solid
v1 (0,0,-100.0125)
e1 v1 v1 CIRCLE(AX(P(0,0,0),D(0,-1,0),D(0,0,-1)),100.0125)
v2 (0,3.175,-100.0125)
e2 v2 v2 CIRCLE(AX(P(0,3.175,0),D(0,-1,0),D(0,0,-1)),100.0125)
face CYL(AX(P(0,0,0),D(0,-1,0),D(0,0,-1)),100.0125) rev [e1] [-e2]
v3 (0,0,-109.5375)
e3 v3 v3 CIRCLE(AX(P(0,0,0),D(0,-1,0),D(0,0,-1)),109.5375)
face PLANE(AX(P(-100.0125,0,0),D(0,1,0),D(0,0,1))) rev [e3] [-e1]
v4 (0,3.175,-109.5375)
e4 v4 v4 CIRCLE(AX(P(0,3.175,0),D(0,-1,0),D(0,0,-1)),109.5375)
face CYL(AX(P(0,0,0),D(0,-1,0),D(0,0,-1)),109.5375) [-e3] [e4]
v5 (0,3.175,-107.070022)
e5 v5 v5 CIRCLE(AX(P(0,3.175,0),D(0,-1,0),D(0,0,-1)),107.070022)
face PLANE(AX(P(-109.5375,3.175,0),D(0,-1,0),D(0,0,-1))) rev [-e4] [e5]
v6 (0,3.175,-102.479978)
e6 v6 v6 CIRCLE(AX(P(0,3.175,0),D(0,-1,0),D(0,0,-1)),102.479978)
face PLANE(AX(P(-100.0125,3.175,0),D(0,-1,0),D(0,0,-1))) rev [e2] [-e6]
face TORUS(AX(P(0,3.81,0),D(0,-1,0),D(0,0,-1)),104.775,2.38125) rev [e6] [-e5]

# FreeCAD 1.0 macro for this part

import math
import FreeCAD as App
import Part
import Sketcher
Q = App.Units.Quantity

doc = App.newDocument("Part")
body = doc.addObject("PartDesign::Body", "Body")

# Sketch on XY plane
sketch1 = body.newObject("Sketcher::SketchObject", "Sketch")
sketch1.AttachmentSupport = (doc.getObject("XY_Plane"), [""])
sketch1.MapMode = "FlatFace"
sketch1.addGeometry(Part.LineSegment(App.Vector(-109.5, 0, 0), App.Vector(-100, 0, 0)), False)
sketch1.addGeometry(Part.LineSegment(App.Vector(-100, 0, 0), App.Vector(-100, 3.2, 0)), False)
sketch1.addGeometry(Part.LineSegment(App.Vector(-100, 3.2, 0), App.Vector(-102.5, 3.2, 0)), False)
sketch1.addGeometry(Part.ArcOfCircle(Part.Circle(App.Vector(-104.8, 3.8, 0), App.Vector(0, 0, 1), 2.4), math.radians(-165), math.radians(-15)), False)
sketch1.addGeometry(Part.LineSegment(App.Vector(-107.1, 3.2, 0), App.Vector(-109.5, 3.2, 0)), False)
sketch1.addGeometry(Part.LineSegment(App.Vector(-109.5, 3.2, 0), App.Vector(-109.5, 0, 0)), False)
sketch1.addConstraint(Sketcher.Constraint("Coincident", 0, 2, 1, 1))
sketch1.addConstraint(Sketcher.Constraint("Coincident", 1, 2, 2, 1))
sketch1.addConstraint(Sketcher.Constraint("Coincident", 2, 2, 3, 2))
sketch1.addConstraint(Sketcher.Constraint("Coincident", 3, 1, 4, 1))
sketch1.addConstraint(Sketcher.Constraint("Coincident", 4, 2, 5, 1))
sketch1.addConstraint(Sketcher.Constraint("Coincident", 5, 2, 0, 1))
sketch1.addConstraint(Sketcher.Constraint("Horizontal", 0))
sketch1.addConstraint(Sketcher.Constraint("Vertical", 1))
sketch1.addConstraint(Sketcher.Constraint("Horizontal", 2))
sketch1.addConstraint(Sketcher.Constraint("Horizontal", 4))
sketch1.addConstraint(Sketcher.Constraint("Vertical", 5))
sketch1.addConstraint(Sketcher.Constraint("PointOnObject", 0, 2, -1))
sketch1.addConstraint(Sketcher.Constraint("Horizontal", 2, 2, 3, 1))
sketch1.addConstraint(Sketcher.Constraint("Equal", 2, 4))
sketch1.addConstraint(Sketcher.Constraint("Radius", 3, Q("0.09375 in")))
sketch1.addConstraint(Sketcher.Constraint("DistanceX", 0, 1, 0, 2, Q("0.375 in")))
sketch1.addConstraint(Sketcher.Constraint("DistanceY", 1, 1, 1, 2, Q("0.125 in")))
sketch1.addConstraint(Sketcher.Constraint("DistanceY", -1, 1, 3, 3, Q("0.15 in")))
sketch1.addConstraint(Sketcher.Constraint("DistanceX", 3, 3, -1, 1, Q("4.125 in")))
revolution = body.newObject("PartDesign::Revolution", "Revolution")
revolution.Profile = sketch1
revolution.ReferenceAxis = (sketch1, ["V_Axis"])
revolution.Angle = 360

doc.recompute()
